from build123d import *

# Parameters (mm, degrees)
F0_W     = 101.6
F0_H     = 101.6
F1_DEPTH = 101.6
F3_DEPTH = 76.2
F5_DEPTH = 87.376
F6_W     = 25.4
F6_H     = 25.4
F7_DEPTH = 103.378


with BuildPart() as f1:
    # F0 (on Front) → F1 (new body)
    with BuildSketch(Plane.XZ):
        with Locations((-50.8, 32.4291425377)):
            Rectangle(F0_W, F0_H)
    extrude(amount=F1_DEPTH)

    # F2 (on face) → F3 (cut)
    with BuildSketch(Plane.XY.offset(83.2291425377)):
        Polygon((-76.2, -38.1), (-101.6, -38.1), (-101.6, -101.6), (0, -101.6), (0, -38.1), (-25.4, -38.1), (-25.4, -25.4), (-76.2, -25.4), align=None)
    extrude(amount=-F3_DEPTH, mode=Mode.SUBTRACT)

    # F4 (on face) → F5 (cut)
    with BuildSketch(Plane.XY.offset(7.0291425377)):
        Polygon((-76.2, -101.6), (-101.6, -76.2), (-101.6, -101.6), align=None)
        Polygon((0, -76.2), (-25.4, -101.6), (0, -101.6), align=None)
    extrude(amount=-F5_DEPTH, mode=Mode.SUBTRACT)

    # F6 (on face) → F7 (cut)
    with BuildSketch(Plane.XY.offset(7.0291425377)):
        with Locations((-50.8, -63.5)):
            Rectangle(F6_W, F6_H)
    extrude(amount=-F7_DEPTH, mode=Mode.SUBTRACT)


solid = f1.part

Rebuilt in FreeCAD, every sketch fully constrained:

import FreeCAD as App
import Part
import Sketcher
Q = App.Units.Quantity

doc = App.newDocument("Part")
body = doc.addObject("PartDesign::Body", "Body")

# Sketch on XZ plane
sketch1 = body.newObject("Sketcher::SketchObject", "Sketch")
sketch1.AttachmentSupport = (doc.getObject("XZ_Plane"), [""])
sketch1.MapMode = "FlatFace"
sketch1.addGeometry([
    Part.LineSegment(App.Vector(-102, 83, 0), App.Vector(-102, -18, 0)),
    Part.LineSegment(App.Vector(-102, -18, 0), App.Vector(0, -18, 0)),
    Part.LineSegment(App.Vector(0, -18, 0), App.Vector(0, 83, 0)),
    Part.LineSegment(App.Vector(0, 83, 0), App.Vector(-102, 83, 0)),
], False)
sketch1.addConstraint([
    Sketcher.Constraint("Coincident", 0, 2, 1, 1),
    Sketcher.Constraint("Coincident", 1, 2, 2, 1),
    Sketcher.Constraint("Coincident", 2, 2, 3, 1),
    Sketcher.Constraint("Coincident", 3, 2, 0, 1),
    Sketcher.Constraint("Vertical", 0),
    Sketcher.Constraint("Horizontal", 1),
    Sketcher.Constraint("Vertical", 2),
    Sketcher.Constraint("Horizontal", 3),
    Sketcher.Constraint("PointOnObject", 1, 2, -2),
    Sketcher.Constraint("Equal", 3, 0),
    Sketcher.Constraint("DistanceX", 1, 1, 1, 2, Q("4 in")),
    Sketcher.Constraint("DistanceY", 0, 2, -1, 1, Q("18.370857 mm")),
])
pad1 = body.newObject("PartDesign::Pad", "Pad")
pad1.Profile = sketch1
pad1.Length = Q("4 in")

# Sketch on XY plane
sketch2 = body.newObject("Sketcher::SketchObject", "Sketch001")
sketch2.AttachmentSupport = (doc.getObject("XY_Plane"), [""])
sketch2.MapMode = "FlatFace"
sketch2.AttachmentOffset = App.Placement(App.Vector(0, 0, 83.229143), App.Rotation())
sketch2.addGeometry([
    Part.LineSegment(App.Vector(-76, -38, 0), App.Vector(-102, -38, 0)),  # 0
    Part.LineSegment(App.Vector(-102, -38, 0), App.Vector(-102, -102, 0)),  # 1
    Part.LineSegment(App.Vector(-102, -102, 0), App.Vector(0, -102, 0)),  # 2
    Part.LineSegment(App.Vector(0, -102, 0), App.Vector(0, -38, 0)),  # 3
    Part.LineSegment(App.Vector(0, -38, 0), App.Vector(-25, -38, 0)),  # 4
    Part.LineSegment(App.Vector(-25, -38, 0), App.Vector(-25, -25, 0)),  # 5
    Part.LineSegment(App.Vector(-25, -25, 0), App.Vector(-76, -25, 0)),  # 6
    Part.LineSegment(App.Vector(-76, -25, 0), App.Vector(-76, -38, 0)),  # 7
], False)
sketch2.addConstraint([
    Sketcher.Constraint("Coincident", 0, 2, 1, 1),
    Sketcher.Constraint("Coincident", 1, 2, 2, 1),
    Sketcher.Constraint("Coincident", 2, 2, 3, 1),
    Sketcher.Constraint("Coincident", 3, 2, 4, 1),
    Sketcher.Constraint("Coincident", 4, 2, 5, 1),
    Sketcher.Constraint("Coincident", 5, 2, 6, 1),
    Sketcher.Constraint("Coincident", 6, 2, 7, 1),
    Sketcher.Constraint("Coincident", 7, 2, 0, 1),
    Sketcher.Constraint("Horizontal", 0),
    Sketcher.Constraint("Vertical", 1),
    Sketcher.Constraint("Horizontal", 2),
    Sketcher.Constraint("Vertical", 3),
    Sketcher.Constraint("Horizontal", 4),
    Sketcher.Constraint("Vertical", 5),
    Sketcher.Constraint("Horizontal", 6),
    Sketcher.Constraint("Vertical", 7),
    Sketcher.Constraint("PointOnObject", 2, 2, -2),
    Sketcher.Constraint("Horizontal", 0, 2, 3, 2),
    Sketcher.Constraint("Equal", 0, 4),
    Sketcher.Constraint("DistanceX", 0, 2, 0, 1, Q("1 in")),
    Sketcher.Constraint("DistanceX", 2, 1, 2, 2, Q("4 in")),
    Sketcher.Constraint("DistanceY", 1, 2, 1, 1, Q("2.5 in")),
    Sketcher.Constraint("DistanceY", 5, 1, 5, 2, Q("0.5 in")),
    Sketcher.Constraint("DistanceY", 1, 2, -1, 1, Q("4 in")),
])
pocket1 = body.newObject("PartDesign::Pocket", "Pocket")
pocket1.Profile = sketch2
pocket1.Length = Q("3 in")

# Sketch on XY plane
sketch3 = body.newObject("Sketcher::SketchObject", "Sketch002")
sketch3.AttachmentSupport = (doc.getObject("XY_Plane"), [""])
sketch3.MapMode = "FlatFace"
sketch3.AttachmentOffset = App.Placement(App.Vector(0, 0, 7.029143), App.Rotation())
sketch3.addGeometry([
    Part.LineSegment(App.Vector(-76, -102, 0), App.Vector(-102, -76, 0)),  # 0
    Part.LineSegment(App.Vector(-102, -76, 0), App.Vector(-102, -102, 0)),  # 1
    Part.LineSegment(App.Vector(-102, -102, 0), App.Vector(-76, -102, 0)),  # 2
    Part.LineSegment(App.Vector(0, -76, 0), App.Vector(-25, -102, 0)),  # 3
    Part.LineSegment(App.Vector(-25, -102, 0), App.Vector(0, -102, 0)),  # 4
    Part.LineSegment(App.Vector(0, -102, 0), App.Vector(0, -76, 0)),  # 5
], False)
sketch3.addConstraint([
    Sketcher.Constraint("Coincident", 0, 2, 1, 1),
    Sketcher.Constraint("Coincident", 1, 2, 2, 1),
    Sketcher.Constraint("Coincident", 2, 2, 0, 1),
    Sketcher.Constraint("Coincident", 3, 2, 4, 1),
    Sketcher.Constraint("Coincident", 4, 2, 5, 1),
    Sketcher.Constraint("Coincident", 5, 2, 3, 1),
    Sketcher.Constraint("Vertical", 1),
    Sketcher.Constraint("Horizontal", 2),
    Sketcher.Constraint("Horizontal", 4),
    Sketcher.Constraint("Vertical", 5),
    Sketcher.Constraint("PointOnObject", 4, 2, -2),
    Sketcher.Constraint("Perpendicular", 0, 3),
    Sketcher.Constraint("Horizontal", 2, 2, 3, 2),
    Sketcher.Constraint("Horizontal", 0, 2, 5, 2),
    Sketcher.Constraint("Equal", 2, 4),
    Sketcher.Constraint("DistanceX", 2, 1, 2, 2, Q("1 in")),
    Sketcher.Constraint("DistanceX", 0, 2, -1, 1, Q("4 in")),
    Sketcher.Constraint("DistanceY", 0, 2, -1, 1, Q("3 in")),
])
pocket2 = body.newObject("PartDesign::Pocket", "Pocket001")
pocket2.Profile = sketch3
pocket2.Length = Q("3.44 in")

# Sketch on XY plane
sketch4 = body.newObject("Sketcher::SketchObject", "Sketch003")
sketch4.AttachmentSupport = (doc.getObject("XY_Plane"), [""])
sketch4.MapMode = "FlatFace"
sketch4.AttachmentOffset = App.Placement(App.Vector(0, 0, 7.029143), App.Rotation())
sketch4.addGeometry([
    Part.LineSegment(App.Vector(-64, -51, 0), App.Vector(-64, -76, 0)),
    Part.LineSegment(App.Vector(-64, -76, 0), App.Vector(-38, -76, 0)),
    Part.LineSegment(App.Vector(-38, -76, 0), App.Vector(-38, -51, 0)),
    Part.LineSegment(App.Vector(-38, -51, 0), App.Vector(-64, -51, 0)),
], False)
sketch4.addConstraint([
    Sketcher.Constraint("Coincident", 0, 2, 1, 1),
    Sketcher.Constraint("Coincident", 1, 2, 2, 1),
    Sketcher.Constraint("Coincident", 2, 2, 3, 1),
    Sketcher.Constraint("Coincident", 3, 2, 0, 1),
    Sketcher.Constraint("Vertical", 0),
    Sketcher.Constraint("Horizontal", 1),
    Sketcher.Constraint("Vertical", 2),
    Sketcher.Constraint("Horizontal", 3),
    Sketcher.Constraint("Equal", 3, 0),
    Sketcher.Constraint("DistanceX", 1, 1, 1, 2, Q("1 in")),
    Sketcher.Constraint("DistanceY", 0, 2, -1, 1, Q("3 in")),
    Sketcher.Constraint("DistanceX", 0, 2, -1, 1, Q("2.5 in")),
])
pocket3 = body.newObject("PartDesign::Pocket", "Pocket002")
pocket3.Profile = sketch4
pocket3.Length = Q("4.07 in")

doc.recompute()
